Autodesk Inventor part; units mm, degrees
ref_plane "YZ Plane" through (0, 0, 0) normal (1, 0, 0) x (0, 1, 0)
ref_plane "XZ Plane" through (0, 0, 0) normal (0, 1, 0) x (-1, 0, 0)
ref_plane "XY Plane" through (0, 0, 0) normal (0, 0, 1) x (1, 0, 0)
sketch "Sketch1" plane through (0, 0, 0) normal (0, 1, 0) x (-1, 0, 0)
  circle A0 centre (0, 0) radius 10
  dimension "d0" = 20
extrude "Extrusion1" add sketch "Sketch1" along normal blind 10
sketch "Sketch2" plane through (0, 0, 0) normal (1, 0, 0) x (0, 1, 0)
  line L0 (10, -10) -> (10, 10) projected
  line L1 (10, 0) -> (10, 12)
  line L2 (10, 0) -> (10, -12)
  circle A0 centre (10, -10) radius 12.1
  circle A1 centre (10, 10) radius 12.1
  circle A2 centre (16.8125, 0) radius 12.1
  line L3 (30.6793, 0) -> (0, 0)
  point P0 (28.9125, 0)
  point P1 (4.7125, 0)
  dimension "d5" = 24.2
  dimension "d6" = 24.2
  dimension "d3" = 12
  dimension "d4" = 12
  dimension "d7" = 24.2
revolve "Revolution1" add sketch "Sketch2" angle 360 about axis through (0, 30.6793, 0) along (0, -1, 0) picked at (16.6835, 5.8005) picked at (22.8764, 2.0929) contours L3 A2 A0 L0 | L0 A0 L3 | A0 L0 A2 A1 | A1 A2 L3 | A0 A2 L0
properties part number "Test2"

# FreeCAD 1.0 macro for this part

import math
import FreeCAD as App
import Part
import Sketcher
Q = App.Units.Quantity

doc = App.newDocument("Part")
body = doc.addObject("PartDesign::Body", "Body")

sketch1 = doc.addObject("Sketcher::SketchObject", "Sketch")
body.addObject(sketch1)
sketch1.AttachmentSupport = (doc.XZ_Plane, [""])
sketch1.MapMode = "FlatFace"
sketch1.addGeometry(Part.Circle(App.Vector(0, 0, 0), App.Vector(0, 0, 1), 10), False)
sketch1.addConstraint([
    Sketcher.Constraint("Coincident", 0, 3, -1, 1),
    Sketcher.Constraint("Diameter", 0, Q("20 mm")),
])
pad1 = doc.addObject("PartDesign::Pad", "Pad")
body.addObject(pad1)
pad1.Profile = sketch1
pad1.Length = 10
pad1.Reversed = True

sketch2 = doc.addObject("Sketcher::SketchObject", "Sketch001")
body.addObject(sketch2)
sketch2.AttachmentSupport = (doc.YZ_Plane, [""])
sketch2.MapMode = "FlatFace"
sketch2.addGeometry([
    Part.LineSegment(App.Vector(5, 0, 0), App.Vector(29, 0, 0)),
    Part.ArcOfCircle(Part.Circle(App.Vector(17, 0, 0), App.Vector(0, 0, 1), 12), math.radians(0), math.radians(180)),
], False)
sketch2.addConstraint([
    Sketcher.Constraint("Coincident", 0, 1, 1, 2),
    Sketcher.Constraint("Coincident", 1, 1, 0, 2),
    Sketcher.Constraint("Horizontal", 0),
    Sketcher.Constraint("PointOnObject", 1, 3, -1),
    Sketcher.Constraint("PointOnObject", 0, 1, -1),
    Sketcher.Constraint("Radius", 1, Q("12.1 mm")),
    Sketcher.Constraint("DistanceX", -1, 1, 1, 3, Q("16.8125 mm")),
])
revolution = doc.addObject("PartDesign::Revolution", "Revolution")
body.addObject(revolution)
revolution.Profile = sketch2
revolution.ReferenceAxis = (sketch2, ["H_Axis"])
revolution.Angle = 360

doc.recompute()
